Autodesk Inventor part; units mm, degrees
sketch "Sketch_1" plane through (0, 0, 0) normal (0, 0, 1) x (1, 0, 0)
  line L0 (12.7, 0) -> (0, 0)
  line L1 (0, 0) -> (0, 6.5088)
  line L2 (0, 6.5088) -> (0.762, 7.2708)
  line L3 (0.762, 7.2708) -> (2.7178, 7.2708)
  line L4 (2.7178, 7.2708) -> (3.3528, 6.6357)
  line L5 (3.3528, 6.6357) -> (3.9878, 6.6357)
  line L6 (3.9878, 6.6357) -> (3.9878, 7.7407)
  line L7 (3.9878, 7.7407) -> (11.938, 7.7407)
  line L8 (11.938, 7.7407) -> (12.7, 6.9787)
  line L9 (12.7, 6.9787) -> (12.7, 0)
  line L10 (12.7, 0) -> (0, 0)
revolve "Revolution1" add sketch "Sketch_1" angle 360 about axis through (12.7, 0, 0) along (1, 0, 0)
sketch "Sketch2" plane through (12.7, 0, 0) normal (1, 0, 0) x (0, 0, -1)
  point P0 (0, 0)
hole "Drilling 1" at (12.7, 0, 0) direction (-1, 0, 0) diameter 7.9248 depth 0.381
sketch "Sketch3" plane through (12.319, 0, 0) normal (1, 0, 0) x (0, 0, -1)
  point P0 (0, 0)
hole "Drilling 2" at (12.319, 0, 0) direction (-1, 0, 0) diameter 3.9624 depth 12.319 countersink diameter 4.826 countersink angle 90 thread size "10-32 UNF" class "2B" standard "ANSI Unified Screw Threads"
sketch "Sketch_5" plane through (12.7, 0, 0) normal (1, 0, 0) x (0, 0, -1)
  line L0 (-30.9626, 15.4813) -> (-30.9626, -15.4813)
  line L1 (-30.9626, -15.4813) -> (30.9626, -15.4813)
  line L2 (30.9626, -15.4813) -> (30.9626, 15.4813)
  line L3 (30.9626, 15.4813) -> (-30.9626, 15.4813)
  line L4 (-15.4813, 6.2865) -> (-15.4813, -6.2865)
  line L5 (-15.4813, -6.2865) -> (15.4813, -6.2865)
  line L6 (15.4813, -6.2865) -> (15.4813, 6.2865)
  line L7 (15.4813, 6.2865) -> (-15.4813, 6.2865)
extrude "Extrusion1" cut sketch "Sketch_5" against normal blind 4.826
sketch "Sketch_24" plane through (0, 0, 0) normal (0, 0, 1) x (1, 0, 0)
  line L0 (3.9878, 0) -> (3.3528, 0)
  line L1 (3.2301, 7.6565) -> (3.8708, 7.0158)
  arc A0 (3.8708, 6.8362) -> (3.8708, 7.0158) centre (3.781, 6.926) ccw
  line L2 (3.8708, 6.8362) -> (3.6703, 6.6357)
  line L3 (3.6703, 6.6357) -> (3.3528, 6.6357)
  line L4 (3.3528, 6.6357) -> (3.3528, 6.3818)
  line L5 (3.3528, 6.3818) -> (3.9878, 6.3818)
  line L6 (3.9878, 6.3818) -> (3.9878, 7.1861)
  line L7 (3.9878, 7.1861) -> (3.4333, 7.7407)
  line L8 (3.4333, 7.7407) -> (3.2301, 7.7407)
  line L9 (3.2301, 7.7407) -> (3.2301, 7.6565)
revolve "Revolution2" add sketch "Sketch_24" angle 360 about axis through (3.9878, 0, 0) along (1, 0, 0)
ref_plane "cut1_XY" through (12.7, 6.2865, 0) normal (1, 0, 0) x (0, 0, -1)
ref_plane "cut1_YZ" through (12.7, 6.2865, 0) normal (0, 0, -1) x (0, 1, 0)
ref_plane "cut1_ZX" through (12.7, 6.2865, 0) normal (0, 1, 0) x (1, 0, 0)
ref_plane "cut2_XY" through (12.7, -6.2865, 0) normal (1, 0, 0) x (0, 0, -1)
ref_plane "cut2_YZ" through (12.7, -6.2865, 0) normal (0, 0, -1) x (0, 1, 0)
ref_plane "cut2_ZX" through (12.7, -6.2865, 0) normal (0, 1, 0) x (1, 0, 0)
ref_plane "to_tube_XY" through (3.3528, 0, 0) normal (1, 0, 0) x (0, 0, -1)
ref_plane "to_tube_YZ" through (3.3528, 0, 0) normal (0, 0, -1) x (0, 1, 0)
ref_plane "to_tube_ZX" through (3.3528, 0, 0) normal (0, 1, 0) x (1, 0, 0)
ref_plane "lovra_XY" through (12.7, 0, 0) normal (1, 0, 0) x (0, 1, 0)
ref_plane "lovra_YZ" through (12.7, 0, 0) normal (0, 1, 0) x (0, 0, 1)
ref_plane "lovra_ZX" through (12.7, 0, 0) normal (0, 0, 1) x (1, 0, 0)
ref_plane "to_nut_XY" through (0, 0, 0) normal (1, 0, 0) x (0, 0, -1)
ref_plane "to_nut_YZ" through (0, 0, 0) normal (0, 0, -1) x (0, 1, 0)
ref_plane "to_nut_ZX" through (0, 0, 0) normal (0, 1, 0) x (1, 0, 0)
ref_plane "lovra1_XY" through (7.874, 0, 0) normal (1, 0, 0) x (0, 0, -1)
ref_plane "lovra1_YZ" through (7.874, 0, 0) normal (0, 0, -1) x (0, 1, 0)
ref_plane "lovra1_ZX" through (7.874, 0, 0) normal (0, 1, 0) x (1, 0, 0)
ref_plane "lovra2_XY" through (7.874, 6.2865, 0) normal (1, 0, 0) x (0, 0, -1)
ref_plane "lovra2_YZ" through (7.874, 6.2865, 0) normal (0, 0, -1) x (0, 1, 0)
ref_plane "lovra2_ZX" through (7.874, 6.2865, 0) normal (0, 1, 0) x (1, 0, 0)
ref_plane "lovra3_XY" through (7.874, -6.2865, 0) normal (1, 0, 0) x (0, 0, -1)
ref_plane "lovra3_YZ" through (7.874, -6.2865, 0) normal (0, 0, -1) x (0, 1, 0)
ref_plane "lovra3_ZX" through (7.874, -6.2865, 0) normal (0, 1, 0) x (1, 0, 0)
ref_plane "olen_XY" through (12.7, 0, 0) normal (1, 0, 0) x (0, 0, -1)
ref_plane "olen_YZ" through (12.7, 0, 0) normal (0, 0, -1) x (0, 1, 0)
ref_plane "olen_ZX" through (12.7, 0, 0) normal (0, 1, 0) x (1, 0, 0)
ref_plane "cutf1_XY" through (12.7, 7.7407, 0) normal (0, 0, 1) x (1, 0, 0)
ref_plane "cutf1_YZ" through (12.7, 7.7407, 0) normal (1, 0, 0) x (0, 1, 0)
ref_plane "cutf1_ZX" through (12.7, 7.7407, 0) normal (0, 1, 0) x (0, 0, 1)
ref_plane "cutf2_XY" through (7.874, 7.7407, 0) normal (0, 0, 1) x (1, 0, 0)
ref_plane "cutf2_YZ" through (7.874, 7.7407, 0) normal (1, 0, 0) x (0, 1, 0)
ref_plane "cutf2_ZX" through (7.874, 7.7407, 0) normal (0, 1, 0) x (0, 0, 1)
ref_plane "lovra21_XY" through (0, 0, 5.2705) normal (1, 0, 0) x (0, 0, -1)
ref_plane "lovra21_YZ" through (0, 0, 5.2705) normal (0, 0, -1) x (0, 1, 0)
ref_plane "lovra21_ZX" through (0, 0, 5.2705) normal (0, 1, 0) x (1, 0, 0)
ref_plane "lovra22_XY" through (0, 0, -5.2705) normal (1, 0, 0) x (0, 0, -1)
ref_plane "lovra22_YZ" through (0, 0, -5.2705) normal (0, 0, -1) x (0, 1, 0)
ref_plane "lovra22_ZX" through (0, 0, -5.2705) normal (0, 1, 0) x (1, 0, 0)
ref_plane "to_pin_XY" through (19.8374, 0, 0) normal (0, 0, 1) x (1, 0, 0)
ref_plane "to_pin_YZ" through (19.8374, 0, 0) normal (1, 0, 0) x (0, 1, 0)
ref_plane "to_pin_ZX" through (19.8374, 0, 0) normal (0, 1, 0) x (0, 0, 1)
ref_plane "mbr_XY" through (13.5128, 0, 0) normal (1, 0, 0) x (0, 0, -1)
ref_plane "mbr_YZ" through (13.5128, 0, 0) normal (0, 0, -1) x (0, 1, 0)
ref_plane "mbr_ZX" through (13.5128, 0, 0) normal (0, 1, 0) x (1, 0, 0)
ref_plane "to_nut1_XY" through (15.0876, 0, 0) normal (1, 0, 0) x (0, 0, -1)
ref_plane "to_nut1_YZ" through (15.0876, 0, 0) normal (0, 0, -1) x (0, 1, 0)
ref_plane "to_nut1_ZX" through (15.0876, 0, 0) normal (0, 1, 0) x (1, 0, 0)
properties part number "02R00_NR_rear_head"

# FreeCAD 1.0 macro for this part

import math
import FreeCAD as App
import Part
import Sketcher
from FreeCAD import Vector
Q = App.Units.Quantity

doc = App.newDocument("Part")
body = doc.addObject("PartDesign::Body", "Body")

# Sketch on XY plane
sketch1 = body.newObject("Sketcher::SketchObject", "Sketch")
sketch1.AttachmentSupport = (doc.getObject("XY_Plane"), [""])
sketch1.MapMode = "FlatFace"
sketch1.addGeometry(Part.LineSegment(Vector(0, 0, 0), Vector(12.7, 0, 0)), False)
sketch1.addGeometry(Part.LineSegment(Vector(12.7, 0, 0), Vector(12.7, 7, 0)), False)
sketch1.addGeometry(Part.LineSegment(Vector(12.7, 7, 0), Vector(11.9, 7.7, 0)), False)
sketch1.addGeometry(Part.LineSegment(Vector(11.9, 7.7, 0), Vector(4, 7.7, 0)), False)
sketch1.addGeometry(Part.LineSegment(Vector(4, 7.7, 0), Vector(4, 6.6, 0)), False)
sketch1.addGeometry(Part.LineSegment(Vector(4, 6.6, 0), Vector(3.4, 6.6, 0)), False)
sketch1.addGeometry(Part.LineSegment(Vector(3.4, 6.6, 0), Vector(2.7, 7.3, 0)), False)
sketch1.addGeometry(Part.LineSegment(Vector(2.7, 7.3, 0), Vector(0.8, 7.3, 0)), False)
sketch1.addGeometry(Part.LineSegment(Vector(0.8, 7.3, 0), Vector(0, 6.5, 0)), False)
sketch1.addGeometry(Part.LineSegment(Vector(0, 6.5, 0), Vector(0, 0, 0)), False)
sketch1.addConstraint(Sketcher.Constraint("Coincident", 0, 2, 1, 1))
sketch1.addConstraint(Sketcher.Constraint("Coincident", 1, 2, 2, 1))
sketch1.addConstraint(Sketcher.Constraint("Coincident", 2, 2, 3, 1))
sketch1.addConstraint(Sketcher.Constraint("Coincident", 3, 2, 4, 1))
sketch1.addConstraint(Sketcher.Constraint("Coincident", 4, 2, 5, 1))
sketch1.addConstraint(Sketcher.Constraint("Coincident", 5, 2, 6, 1))
sketch1.addConstraint(Sketcher.Constraint("Coincident", 6, 2, 7, 1))
sketch1.addConstraint(Sketcher.Constraint("Coincident", 7, 2, 8, 1))
sketch1.addConstraint(Sketcher.Constraint("Coincident", 8, 2, 9, 1))
sketch1.addConstraint(Sketcher.Constraint("Coincident", 9, 2, 0, 1))
sketch1.addConstraint(Sketcher.Constraint("Horizontal", 0))
sketch1.addConstraint(Sketcher.Constraint("Vertical", 1))
sketch1.addConstraint(Sketcher.Constraint("Horizontal", 3))
sketch1.addConstraint(Sketcher.Constraint("Vertical", 4))
sketch1.addConstraint(Sketcher.Constraint("Horizontal", 5))
sketch1.addConstraint(Sketcher.Constraint("Horizontal", 7))
sketch1.addConstraint(Sketcher.Constraint("Vertical", 9))
sketch1.addConstraint(Sketcher.Constraint("Coincident", 9, 2, -1, 1))
sketch1.addConstraint(Sketcher.Constraint("Parallel", 2, 6))
sketch1.addConstraint(Sketcher.Constraint("Perpendicular", 6, 8))
sketch1.addConstraint(Sketcher.Constraint("Equal", 2, 8))
sketch1.addConstraint(Sketcher.Constraint("DistanceX", 0, 1, 0, 2, Q("0.5 in")))
sketch1.addConstraint(Sketcher.Constraint("Angle", 2, Q("135 deg")))
sketch1.addConstraint(Sketcher.Constraint("DistanceX", 3, 2, 3, 1, Q("0.313 in")))
sketch1.addConstraint(Sketcher.Constraint("DistanceX", 5, 2, 5, 1, Q("0.025 in")))
sketch1.addConstraint(Sketcher.Constraint("DistanceX", 7, 2, 7, 1, Q("0.077 in")))
sketch1.addConstraint(Sketcher.Constraint("DistanceX", -1, 1, 2, 2, Q("0.47 in")))
sketch1.addConstraint(Sketcher.Constraint("DistanceY", 4, 2, 4, 1, Q("0.0435 in")))
sketch1.addConstraint(Sketcher.Constraint("DistanceY", 1, 1, 1, 2, Q("6.9787 mm")))
revolution = body.newObject("PartDesign::Revolution", "Revolution")
revolution.Profile = sketch1
revolution.ReferenceAxis = (sketch1, ["H_Axis"])
revolution.Angle = 360

# Sketch on YZ plane
sketch2 = body.newObject("Sketcher::SketchObject", "Sketch001")
sketch2.AttachmentSupport = (doc.getObject("YZ_Plane"), [""])
sketch2.MapMode = "FlatFace"
sketch2.AttachmentOffset = App.Placement(Vector(0, 0, 0.5 * 25.4), App.Rotation())
sketch2.addGeometry(Part.Circle(Vector(0, 0, 0), Vector(0, 0, 1), 4), False)
sketch2.addConstraint(Sketcher.Constraint("Coincident", 0, 3, -1, 1))
sketch2.addConstraint(Sketcher.Constraint("Diameter", 0, Q("0.312 in")))
doc.recompute()
hole = body.newObject("PartDesign::Hole", "Hole")
hole.Profile = sketch2
hole.ThreadType = "None"
hole.Diameter = Q("0.312 in")
hole.DepthType = "Dimension"
hole.Depth = Q("0.015 in")
hole.DrillPoint = "Flat"

# Sketch on YZ plane
sketch3 = body.newObject("Sketcher::SketchObject", "Sketch002")
sketch3.AttachmentSupport = (doc.getObject("YZ_Plane"), [""])
sketch3.MapMode = "FlatFace"
sketch3.AttachmentOffset = App.Placement(Vector(0, 0, 0.485 * 25.4), App.Rotation())
sketch3.addGeometry(Part.Circle(Vector(0, 0, 0), Vector(0, 0, 1), 2), False)
sketch3.addConstraint(Sketcher.Constraint("Coincident", 0, 3, -1, 1))
sketch3.addConstraint(Sketcher.Constraint("Diameter", 0, Q("0.156 in")))
doc.recompute()
hole2 = body.newObject("PartDesign::Hole", "Hole001")
hole2.Profile = sketch3
hole2.ThreadType = "None"
hole2.Diameter = Q("0.156 in")
hole2.DepthType = "Dimension"
hole2.Depth = Q("0.485 in")
hole2.DrillPoint = "Flat"
hole2.HoleCutType = "Countersink"
hole2.HoleCutDiameter = Q("0.19 in")
hole2.HoleCutCountersinkAngle = 90

# Sketch on YZ plane
sketch4 = body.newObject("Sketcher::SketchObject", "Sketch003")
sketch4.AttachmentSupport = (doc.getObject("YZ_Plane"), [""])
sketch4.MapMode = "FlatFace"
sketch4.AttachmentOffset = App.Placement(Vector(0, 0, 0.5 * 25.4), App.Rotation())
sketch4.addGeometry(Part.LineSegment(Vector(15, -31, 0), Vector(15, 31, 0)), False)
sketch4.addGeometry(Part.LineSegment(Vector(15, 31, 0), Vector(-15, 31, 0)), False)
sketch4.addGeometry(Part.LineSegment(Vector(-15, 31, 0), Vector(-15, -31, 0)), False)
sketch4.addGeometry(Part.LineSegment(Vector(-15, -31, 0), Vector(15, -31, 0)), False)
sketch4.addGeometry(Part.LineSegment(Vector(-6, 15, 0), Vector(6, 15, 0)), False)
sketch4.addGeometry(Part.LineSegment(Vector(6, 15, 0), Vector(6, -15, 0)), False)
sketch4.addGeometry(Part.LineSegment(Vector(6, -15, 0), Vector(-6, -15, 0)), False)
sketch4.addGeometry(Part.LineSegment(Vector(-6, -15, 0), Vector(-6, 15, 0)), False)
sketch4.addConstraint(Sketcher.Constraint("Coincident", 0, 2, 1, 1))
sketch4.addConstraint(Sketcher.Constraint("Coincident", 1, 2, 2, 1))
sketch4.addConstraint(Sketcher.Constraint("Coincident", 2, 2, 3, 1))
sketch4.addConstraint(Sketcher.Constraint("Coincident", 3, 2, 0, 1))
sketch4.addConstraint(Sketcher.Constraint("Coincident", 4, 2, 5, 1))
sketch4.addConstraint(Sketcher.Constraint("Coincident", 5, 2, 6, 1))
sketch4.addConstraint(Sketcher.Constraint("Coincident", 6, 2, 7, 1))
sketch4.addConstraint(Sketcher.Constraint("Coincident", 7, 2, 4, 1))
sketch4.addConstraint(Sketcher.Constraint("Vertical", 0))
sketch4.addConstraint(Sketcher.Constraint("Horizontal", 1))
sketch4.addConstraint(Sketcher.Constraint("Vertical", 2))
sketch4.addConstraint(Sketcher.Constraint("Horizontal", 3))
sketch4.addConstraint(Sketcher.Constraint("Horizontal", 4))
sketch4.addConstraint(Sketcher.Constraint("Vertical", 5))
sketch4.addConstraint(Sketcher.Constraint("Horizontal", 6))
sketch4.addConstraint(Sketcher.Constraint("Vertical", 7))
sketch4.addConstraint(Sketcher.Constraint("Symmetric", 0, 2, 2, 2, -1, 1))
sketch4.addConstraint(Sketcher.Constraint("Symmetric", 4, 2, 6, 2, -1, 1))
sketch4.addConstraint(Sketcher.Constraint("Equal", 3, 5))
sketch4.addConstraint(Sketcher.Constraint("DistanceX", 1, 2, 1, 1, Q("1.219 in")))
sketch4.addConstraint(Sketcher.Constraint("DistanceX", 4, 1, 4, 2, Q("0.495 in")))
sketch4.addConstraint(Sketcher.Constraint("DistanceY", 0, 1, 0, 2, Q("2.438 in")))
pocket1 = body.newObject("PartDesign::Pocket", "Pocket")
pocket1.Profile = sketch4
pocket1.Length = Q("0.19 in")

# Sketch on XY plane
sketch5 = body.newObject("Sketcher::SketchObject", "Sketch004")
sketch5.AttachmentSupport = (doc.getObject("XY_Plane"), [""])
sketch5.MapMode = "FlatFace"
sketch5.addGeometry(Part.LineSegment(Vector(3.23, 7.74, 0), Vector(3.23, 7.66, 0)), False)
sketch5.addGeometry(Part.LineSegment(Vector(3.23, 7.66, 0), Vector(3.87, 7.02, 0)), False)
sketch5.addGeometry(Part.ArcOfCircle(Part.Circle(Vector(3.78, 6.93, 0), Vector(0, 0, 1), 0.13), math.radians(-45), math.radians(45)), False)
sketch5.addGeometry(Part.LineSegment(Vector(3.87, 6.84, 0), Vector(3.67, 6.64, 0)), False)
sketch5.addGeometry(Part.LineSegment(Vector(3.67, 6.64, 0), Vector(3.35, 6.64, 0)), False)
sketch5.addGeometry(Part.LineSegment(Vector(3.35, 6.64, 0), Vector(3.35, 6.38, 0)), False)
sketch5.addGeometry(Part.LineSegment(Vector(3.35, 6.38, 0), Vector(3.99, 6.38, 0)), False)
sketch5.addGeometry(Part.LineSegment(Vector(3.99, 6.38, 0), Vector(3.99, 7.19, 0)), False)
sketch5.addGeometry(Part.LineSegment(Vector(3.99, 7.19, 0), Vector(3.43, 7.74, 0)), False)
sketch5.addGeometry(Part.LineSegment(Vector(3.43, 7.74, 0), Vector(3.23, 7.74, 0)), False)
sketch5.addConstraint(Sketcher.Constraint("Coincident", 0, 2, 1, 1))
sketch5.addConstraint(Sketcher.Constraint("Tangent", 1, 2, 2, 2))
sketch5.addConstraint(Sketcher.Constraint("Tangent", 2, 1, 3, 1))
sketch5.addConstraint(Sketcher.Constraint("Coincident", 3, 2, 4, 1))
sketch5.addConstraint(Sketcher.Constraint("Coincident", 4, 2, 5, 1))
sketch5.addConstraint(Sketcher.Constraint("Coincident", 5, 2, 6, 1))
sketch5.addConstraint(Sketcher.Constraint("Coincident", 6, 2, 7, 1))
sketch5.addConstraint(Sketcher.Constraint("Coincident", 7, 2, 8, 1))
sketch5.addConstraint(Sketcher.Constraint("Coincident", 8, 2, 9, 1))
sketch5.addConstraint(Sketcher.Constraint("Coincident", 9, 2, 0, 1))
sketch5.addConstraint(Sketcher.Constraint("Vertical", 0))
sketch5.addConstraint(Sketcher.Constraint("Horizontal", 4))
sketch5.addConstraint(Sketcher.Constraint("Vertical", 5))
sketch5.addConstraint(Sketcher.Constraint("Horizontal", 6))
sketch5.addConstraint(Sketcher.Constraint("Vertical", 7))
sketch5.addConstraint(Sketcher.Constraint("Horizontal", 9))
sketch5.addConstraint(Sketcher.Constraint("Perpendicular", 1, 3))
sketch5.addConstraint(Sketcher.Constraint("Perpendicular", 3, 8))
sketch5.addConstraint(Sketcher.Constraint("Vertical", 1, 2, 2, 1))
sketch5.addConstraint(Sketcher.Constraint("Radius", 2, Q("0.005 in")))
sketch5.addConstraint(Sketcher.Constraint("DistanceY", 5, 2, 5, 1, Q("0.01 in")))
sketch5.addConstraint(Sketcher.Constraint("DistanceX", 6, 1, 6, 2, Q("0.025 in")))
sketch5.addConstraint(Sketcher.Constraint("DistanceX", 9, 2, 9, 1, Q("0.008 in")))
sketch5.addConstraint(Sketcher.Constraint("DistanceX", 4, 2, 4, 1, Q("0.0125 in")))
sketch5.addConstraint(Sketcher.Constraint("DistanceX", -1, 1, 4, 2, Q("0.132 in")))
sketch5.addConstraint(Sketcher.Constraint("DistanceY", 0, 2, 0, 1, Q("0.0842 mm")))
sketch5.addConstraint(Sketcher.Constraint("DistanceY", 7, 1, 7, 2, Q("0.8043 mm")))
sketch5.addConstraint(Sketcher.Constraint("DistanceX", 0, 2, 2, 3, Q("0.0217 in")))
sketch5.addConstraint(Sketcher.Constraint("DistanceY", -1, 1, 2, 3, Q("6.926 mm")))
revolution2 = body.newObject("PartDesign::Revolution", "Revolution001")
revolution2.Profile = sketch5
revolution2.ReferenceAxis = (sketch5, ["H_Axis"])
revolution2.Angle = 360

doc.recompute()
